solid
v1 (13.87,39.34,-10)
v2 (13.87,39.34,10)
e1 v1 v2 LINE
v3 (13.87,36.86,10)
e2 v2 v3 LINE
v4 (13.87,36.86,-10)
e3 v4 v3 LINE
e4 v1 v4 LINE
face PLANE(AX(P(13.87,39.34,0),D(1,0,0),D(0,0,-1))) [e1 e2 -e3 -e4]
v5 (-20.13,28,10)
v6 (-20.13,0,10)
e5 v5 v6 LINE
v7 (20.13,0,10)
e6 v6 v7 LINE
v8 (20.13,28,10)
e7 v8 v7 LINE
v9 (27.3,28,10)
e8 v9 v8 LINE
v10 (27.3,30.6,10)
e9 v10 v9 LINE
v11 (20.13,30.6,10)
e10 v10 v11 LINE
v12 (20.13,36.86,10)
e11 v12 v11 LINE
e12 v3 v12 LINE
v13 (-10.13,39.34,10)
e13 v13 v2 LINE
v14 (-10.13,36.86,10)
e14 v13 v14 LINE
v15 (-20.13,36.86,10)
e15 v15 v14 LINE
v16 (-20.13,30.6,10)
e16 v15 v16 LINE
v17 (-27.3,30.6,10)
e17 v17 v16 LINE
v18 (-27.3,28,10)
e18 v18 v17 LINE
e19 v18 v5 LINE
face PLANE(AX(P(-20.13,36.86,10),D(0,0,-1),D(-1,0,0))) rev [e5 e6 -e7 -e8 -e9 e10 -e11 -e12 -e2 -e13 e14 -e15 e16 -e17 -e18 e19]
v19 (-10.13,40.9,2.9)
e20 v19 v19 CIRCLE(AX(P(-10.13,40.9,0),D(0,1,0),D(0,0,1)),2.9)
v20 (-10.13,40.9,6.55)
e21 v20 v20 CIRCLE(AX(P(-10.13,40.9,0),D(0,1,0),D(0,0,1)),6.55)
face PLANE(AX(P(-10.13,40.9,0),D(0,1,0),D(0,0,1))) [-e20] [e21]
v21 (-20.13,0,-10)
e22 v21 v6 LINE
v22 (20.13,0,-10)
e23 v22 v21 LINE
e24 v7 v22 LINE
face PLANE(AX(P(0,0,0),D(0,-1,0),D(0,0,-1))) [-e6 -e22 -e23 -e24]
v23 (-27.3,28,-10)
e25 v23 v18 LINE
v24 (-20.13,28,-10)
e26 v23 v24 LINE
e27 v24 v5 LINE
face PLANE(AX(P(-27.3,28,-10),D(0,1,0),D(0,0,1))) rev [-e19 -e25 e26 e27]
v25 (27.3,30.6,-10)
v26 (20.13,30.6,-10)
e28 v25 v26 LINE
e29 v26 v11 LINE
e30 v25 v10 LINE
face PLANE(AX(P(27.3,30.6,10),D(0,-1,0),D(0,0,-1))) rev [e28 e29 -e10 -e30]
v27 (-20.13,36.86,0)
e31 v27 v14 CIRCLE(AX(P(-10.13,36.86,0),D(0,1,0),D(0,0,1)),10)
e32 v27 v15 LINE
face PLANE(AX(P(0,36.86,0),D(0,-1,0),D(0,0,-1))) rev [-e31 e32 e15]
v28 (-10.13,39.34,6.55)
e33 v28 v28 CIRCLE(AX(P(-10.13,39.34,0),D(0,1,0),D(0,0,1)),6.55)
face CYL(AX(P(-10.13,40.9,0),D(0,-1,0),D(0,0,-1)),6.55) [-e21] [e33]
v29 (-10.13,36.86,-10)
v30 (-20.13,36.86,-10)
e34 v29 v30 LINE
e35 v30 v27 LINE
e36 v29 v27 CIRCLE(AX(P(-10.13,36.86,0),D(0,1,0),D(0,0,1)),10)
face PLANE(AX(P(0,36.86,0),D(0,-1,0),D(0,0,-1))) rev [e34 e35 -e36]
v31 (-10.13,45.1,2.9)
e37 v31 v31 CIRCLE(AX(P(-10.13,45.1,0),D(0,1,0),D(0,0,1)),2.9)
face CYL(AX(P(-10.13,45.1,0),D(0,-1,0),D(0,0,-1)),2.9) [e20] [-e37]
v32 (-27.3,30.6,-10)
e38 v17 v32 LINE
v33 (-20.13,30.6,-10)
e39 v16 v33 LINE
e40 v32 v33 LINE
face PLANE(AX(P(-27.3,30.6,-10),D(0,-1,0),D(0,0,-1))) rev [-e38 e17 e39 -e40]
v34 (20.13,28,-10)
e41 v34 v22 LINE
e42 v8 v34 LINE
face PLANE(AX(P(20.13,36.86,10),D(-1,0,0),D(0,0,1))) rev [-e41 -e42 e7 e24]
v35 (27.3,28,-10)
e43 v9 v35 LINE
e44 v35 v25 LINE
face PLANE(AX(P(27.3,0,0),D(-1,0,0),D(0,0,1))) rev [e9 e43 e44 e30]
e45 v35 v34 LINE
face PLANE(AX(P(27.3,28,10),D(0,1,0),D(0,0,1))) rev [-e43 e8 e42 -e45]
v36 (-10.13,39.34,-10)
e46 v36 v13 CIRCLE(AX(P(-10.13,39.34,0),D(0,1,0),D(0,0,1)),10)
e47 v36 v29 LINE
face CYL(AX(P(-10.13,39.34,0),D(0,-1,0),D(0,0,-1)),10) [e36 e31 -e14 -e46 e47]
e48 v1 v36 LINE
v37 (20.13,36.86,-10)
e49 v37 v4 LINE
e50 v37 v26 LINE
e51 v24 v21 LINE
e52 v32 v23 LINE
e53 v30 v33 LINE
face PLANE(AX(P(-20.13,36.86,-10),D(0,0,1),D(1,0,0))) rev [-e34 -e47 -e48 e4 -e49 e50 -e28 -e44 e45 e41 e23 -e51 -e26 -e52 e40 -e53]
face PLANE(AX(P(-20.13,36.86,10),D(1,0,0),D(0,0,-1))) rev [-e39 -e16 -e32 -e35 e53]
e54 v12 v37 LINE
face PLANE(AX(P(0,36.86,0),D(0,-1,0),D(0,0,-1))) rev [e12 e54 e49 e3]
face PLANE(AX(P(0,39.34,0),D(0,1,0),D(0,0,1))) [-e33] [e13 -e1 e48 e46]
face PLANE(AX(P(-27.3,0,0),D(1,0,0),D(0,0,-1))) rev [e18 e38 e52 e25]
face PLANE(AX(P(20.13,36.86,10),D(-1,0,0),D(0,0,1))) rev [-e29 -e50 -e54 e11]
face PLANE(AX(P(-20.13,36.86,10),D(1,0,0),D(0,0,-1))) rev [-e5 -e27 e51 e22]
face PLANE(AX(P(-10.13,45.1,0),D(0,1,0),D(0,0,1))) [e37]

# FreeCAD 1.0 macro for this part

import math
import FreeCAD as App
import Part
import Sketcher

V = App.Vector
Q = App.Units.Quantity


def add_polygon(sketch, points):
    """Adds a closed chain of lines whose ends are joined by coincident constraints."""
    first, n = sketch.GeometryCount, len(points)
    for a, b in zip(points, points[1:] + points[:1]):
        sketch.addGeometry(Part.LineSegment(App.Vector(*a, 0), App.Vector(*b, 0)), False)
    for i in range(n):
        sketch.addConstraint(Sketcher.Constraint("Coincident", first + i, 2, first + (i + 1) % n, 1))

doc = App.newDocument("Part")
params = doc.addObject("Spreadsheet::Sheet", "Params")
for row, (alias, value) in enumerate([
    ("sketch1_height", "20 mm"),
    ("sketch1_width", "40.26 mm"),
    ("pad1_length", "36.86 mm"),
    ("sketch2_height", "20 mm"),
    ("sketch2_width", "2.6 mm"),
    ("pad2_length", "7.17 mm"),
    ("sketch3_height", "20 mm"),
    ("sketch3_width", "2.6 mm"),
    ("pad3_length", "7.17 mm"),
    ("sketch4_radius", "10 mm"),
    ("sketch4_width", "24 mm"),
    ("pad4_length", "2.48 mm"),
    ("sketch5_diameter", "13.1 mm"),
    ("pad5_length", "1.56 mm"),
    ("sketch6_diameter", "5.8 mm"),
    ("pad6_length", "4.2 mm"),
], start=1):
    params.set(f"A{row}", alias)
    params.set(f"B{row}", "=" + value)
    params.setAlias(f"B{row}", alias)

body = doc.addObject("PartDesign::Body", "Body")

sketch1 = body.newObject("Sketcher::SketchObject", "Sketch")
sketch1.AttachmentSupport = (doc.getObject("XZ_Plane"), [""])
sketch1.MapMode = "FlatFace"
add_polygon(sketch1, [(-20, -10), (-20, 10), (20, 10), (20, -10)])
sketch1.addConstraint([
    Sketcher.Constraint("Vertical", 0),
    Sketcher.Constraint("Horizontal", 1),
    Sketcher.Constraint("Vertical", 2),
    Sketcher.Constraint("Horizontal", 3),
    Sketcher.Constraint("Symmetric", 0, 2, 2, 2, -1, 1),
    Sketcher.Constraint("DistanceY", 0, 1, 0, 2, Q("20 mm")),
    Sketcher.Constraint("DistanceX", 1, 1, 1, 2, Q("40.26 mm")),
])
sketch1.setExpression("Constraints[9]", "Params.sketch1_height")
sketch1.setExpression("Constraints[10]", "Params.sketch1_width")
pad1 = body.newObject("PartDesign::Pad", "Pad")
pad1.Profile = sketch1
pad1.setExpression("Length", "Params.pad1_length")
pad1.Reversed = True

sketch2 = body.newObject("Sketcher::SketchObject", "Sketch001")
sketch2.AttachmentSupport = (doc.getObject("YZ_Plane"), [""])
sketch2.MapMode = "FlatFace"
sketch2.AttachmentOffset = App.Placement(V(0, 0, 20.13), App.Rotation())
add_polygon(sketch2, [(30.6, 10), (28, 10), (28, -10), (30.6, -10)])
sketch2.addConstraint([
    Sketcher.Constraint("Horizontal", 0),
    Sketcher.Constraint("Vertical", 1),
    Sketcher.Constraint("Horizontal", 2),
    Sketcher.Constraint("Vertical", 3),
    Sketcher.Constraint("DistanceY", 1, 2, 1, 1, Q("20 mm")),
    Sketcher.Constraint("DistanceX", 0, 2, 0, 1, Q("2.6 mm")),
    Sketcher.Constraint("DistanceX", -1, 1, 0, 2, Q("28 mm")),
    Sketcher.Constraint("DistanceY", -1, 1, 0, 2, Q("10 mm")),
])
sketch2.setExpression("Constraints[8]", "Params.sketch2_height")
sketch2.setExpression("Constraints[9]", "Params.sketch2_width")
pad2 = body.newObject("PartDesign::Pad", "Pad001")
pad2.Profile = sketch2
pad2.setExpression("Length", "Params.pad2_length")

sketch3 = body.newObject("Sketcher::SketchObject", "Sketch002")
sketch3.AttachmentSupport = (doc.getObject("YZ_Plane"), [""])
sketch3.MapMode = "FlatFace"
sketch3.AttachmentOffset = App.Placement(V(0, 0, -20.13), App.Rotation())
add_polygon(sketch3, [(30.6, -10), (28, -10), (28, 10), (30.6, 10)])
sketch3.addConstraint([
    Sketcher.Constraint("Horizontal", 0),
    Sketcher.Constraint("Vertical", 1),
    Sketcher.Constraint("Horizontal", 2),
    Sketcher.Constraint("Vertical", 3),
    Sketcher.Constraint("DistanceY", 1, 1, 1, 2, Q("20 mm")),
    Sketcher.Constraint("DistanceX", 0, 2, 0, 1, Q("2.6 mm")),
    Sketcher.Constraint("DistanceX", -1, 1, 0, 2, Q("28 mm")),
    Sketcher.Constraint("DistanceY", 0, 2, -1, 1, Q("10 mm")),
])
sketch3.setExpression("Constraints[8]", "Params.sketch3_height")
sketch3.setExpression("Constraints[9]", "Params.sketch3_width")
pad3 = body.newObject("PartDesign::Pad", "Pad002")
pad3.Profile = sketch3
pad3.setExpression("Length", "Params.pad3_length")
pad3.Reversed = True

sketch4 = body.newObject("Sketcher::SketchObject", "Sketch003")
sketch4.AttachmentSupport = (doc.getObject("XZ_Plane"), [""])
sketch4.MapMode = "FlatFace"
sketch4.AttachmentOffset = App.Placement(V(0, 0, -36.86), App.Rotation())
sketch4.addGeometry([
    Part.ArcOfCircle(Part.Circle(V(-10, 0, 0), V(0, 0, 1), 10), math.radians(90), math.radians(270)),
    Part.LineSegment(V(-10, 10, 0), V(14, 10, 0)),
    Part.LineSegment(V(14, 10, 0), V(14, -10, 0)),
    Part.LineSegment(V(14, -10, 0), V(-10, -10, 0)),
], False)
sketch4.addConstraint([
    Sketcher.Constraint("Tangent", 0, 1, 1, 1),
    Sketcher.Constraint("Coincident", 1, 2, 2, 1),
    Sketcher.Constraint("Coincident", 2, 2, 3, 1),
    Sketcher.Constraint("Tangent", 3, 2, 0, 2),
    Sketcher.Constraint("Horizontal", 1),
    Sketcher.Constraint("Vertical", 2),
    Sketcher.Constraint("Horizontal", 3),
    Sketcher.Constraint("PointOnObject", 0, 3, -1),
    Sketcher.Constraint("Radius", 0, Q("10 mm")),
    Sketcher.Constraint("DistanceX", 1, 1, 1, 2, Q("24 mm")),
    Sketcher.Constraint("DistanceX", 0, 3, -1, 1, Q("10.13 mm")),
])
sketch4.setExpression("Constraints[8]", "Params.sketch4_radius")
sketch4.setExpression("Constraints[9]", "Params.sketch4_width")
pad4 = body.newObject("PartDesign::Pad", "Pad003")
pad4.Profile = sketch4
pad4.setExpression("Length", "Params.pad4_length")
pad4.Reversed = True

sketch5 = body.newObject("Sketcher::SketchObject", "Sketch004")
sketch5.AttachmentSupport = (doc.getObject("XZ_Plane"), [""])
sketch5.MapMode = "FlatFace"
sketch5.AttachmentOffset = App.Placement(V(0, 0, -39.34), App.Rotation())
sketch5.addGeometry(Part.Circle(V(-10, 0, 0), V(0, 0, 1), 7), False)
sketch5.addConstraint([
    Sketcher.Constraint("PointOnObject", 0, 3, -1),
    Sketcher.Constraint("Diameter", 0, Q("13.1 mm")),
    Sketcher.Constraint("DistanceX", 0, 3, -1, 1, Q("10.13 mm")),
])
sketch5.setExpression("Constraints[1]", "Params.sketch5_diameter")
pad5 = body.newObject("PartDesign::Pad", "Pad004")
pad5.Profile = sketch5
pad5.setExpression("Length", "Params.pad5_length")
pad5.Reversed = True

sketch6 = body.newObject("Sketcher::SketchObject", "Sketch005")
sketch6.AttachmentSupport = (doc.getObject("XZ_Plane"), [""])
sketch6.MapMode = "FlatFace"
sketch6.AttachmentOffset = App.Placement(V(0, 0, -40.9), App.Rotation())
sketch6.addGeometry(Part.Circle(V(-10.1, 0, 0), V(0, 0, 1), 2.9), False)
sketch6.addConstraint([
    Sketcher.Constraint("PointOnObject", 0, 3, -1),
    Sketcher.Constraint("Diameter", 0, Q("5.8 mm")),
    Sketcher.Constraint("DistanceX", 0, 3, -1, 1, Q("10.13 mm")),
])
sketch6.setExpression("Constraints[1]", "Params.sketch6_diameter")
pad6 = body.newObject("PartDesign::Pad", "Pad005")
pad6.Profile = sketch6
pad6.setExpression("Length", "Params.pad6_length")
pad6.Reversed = True

doc.recompute()
